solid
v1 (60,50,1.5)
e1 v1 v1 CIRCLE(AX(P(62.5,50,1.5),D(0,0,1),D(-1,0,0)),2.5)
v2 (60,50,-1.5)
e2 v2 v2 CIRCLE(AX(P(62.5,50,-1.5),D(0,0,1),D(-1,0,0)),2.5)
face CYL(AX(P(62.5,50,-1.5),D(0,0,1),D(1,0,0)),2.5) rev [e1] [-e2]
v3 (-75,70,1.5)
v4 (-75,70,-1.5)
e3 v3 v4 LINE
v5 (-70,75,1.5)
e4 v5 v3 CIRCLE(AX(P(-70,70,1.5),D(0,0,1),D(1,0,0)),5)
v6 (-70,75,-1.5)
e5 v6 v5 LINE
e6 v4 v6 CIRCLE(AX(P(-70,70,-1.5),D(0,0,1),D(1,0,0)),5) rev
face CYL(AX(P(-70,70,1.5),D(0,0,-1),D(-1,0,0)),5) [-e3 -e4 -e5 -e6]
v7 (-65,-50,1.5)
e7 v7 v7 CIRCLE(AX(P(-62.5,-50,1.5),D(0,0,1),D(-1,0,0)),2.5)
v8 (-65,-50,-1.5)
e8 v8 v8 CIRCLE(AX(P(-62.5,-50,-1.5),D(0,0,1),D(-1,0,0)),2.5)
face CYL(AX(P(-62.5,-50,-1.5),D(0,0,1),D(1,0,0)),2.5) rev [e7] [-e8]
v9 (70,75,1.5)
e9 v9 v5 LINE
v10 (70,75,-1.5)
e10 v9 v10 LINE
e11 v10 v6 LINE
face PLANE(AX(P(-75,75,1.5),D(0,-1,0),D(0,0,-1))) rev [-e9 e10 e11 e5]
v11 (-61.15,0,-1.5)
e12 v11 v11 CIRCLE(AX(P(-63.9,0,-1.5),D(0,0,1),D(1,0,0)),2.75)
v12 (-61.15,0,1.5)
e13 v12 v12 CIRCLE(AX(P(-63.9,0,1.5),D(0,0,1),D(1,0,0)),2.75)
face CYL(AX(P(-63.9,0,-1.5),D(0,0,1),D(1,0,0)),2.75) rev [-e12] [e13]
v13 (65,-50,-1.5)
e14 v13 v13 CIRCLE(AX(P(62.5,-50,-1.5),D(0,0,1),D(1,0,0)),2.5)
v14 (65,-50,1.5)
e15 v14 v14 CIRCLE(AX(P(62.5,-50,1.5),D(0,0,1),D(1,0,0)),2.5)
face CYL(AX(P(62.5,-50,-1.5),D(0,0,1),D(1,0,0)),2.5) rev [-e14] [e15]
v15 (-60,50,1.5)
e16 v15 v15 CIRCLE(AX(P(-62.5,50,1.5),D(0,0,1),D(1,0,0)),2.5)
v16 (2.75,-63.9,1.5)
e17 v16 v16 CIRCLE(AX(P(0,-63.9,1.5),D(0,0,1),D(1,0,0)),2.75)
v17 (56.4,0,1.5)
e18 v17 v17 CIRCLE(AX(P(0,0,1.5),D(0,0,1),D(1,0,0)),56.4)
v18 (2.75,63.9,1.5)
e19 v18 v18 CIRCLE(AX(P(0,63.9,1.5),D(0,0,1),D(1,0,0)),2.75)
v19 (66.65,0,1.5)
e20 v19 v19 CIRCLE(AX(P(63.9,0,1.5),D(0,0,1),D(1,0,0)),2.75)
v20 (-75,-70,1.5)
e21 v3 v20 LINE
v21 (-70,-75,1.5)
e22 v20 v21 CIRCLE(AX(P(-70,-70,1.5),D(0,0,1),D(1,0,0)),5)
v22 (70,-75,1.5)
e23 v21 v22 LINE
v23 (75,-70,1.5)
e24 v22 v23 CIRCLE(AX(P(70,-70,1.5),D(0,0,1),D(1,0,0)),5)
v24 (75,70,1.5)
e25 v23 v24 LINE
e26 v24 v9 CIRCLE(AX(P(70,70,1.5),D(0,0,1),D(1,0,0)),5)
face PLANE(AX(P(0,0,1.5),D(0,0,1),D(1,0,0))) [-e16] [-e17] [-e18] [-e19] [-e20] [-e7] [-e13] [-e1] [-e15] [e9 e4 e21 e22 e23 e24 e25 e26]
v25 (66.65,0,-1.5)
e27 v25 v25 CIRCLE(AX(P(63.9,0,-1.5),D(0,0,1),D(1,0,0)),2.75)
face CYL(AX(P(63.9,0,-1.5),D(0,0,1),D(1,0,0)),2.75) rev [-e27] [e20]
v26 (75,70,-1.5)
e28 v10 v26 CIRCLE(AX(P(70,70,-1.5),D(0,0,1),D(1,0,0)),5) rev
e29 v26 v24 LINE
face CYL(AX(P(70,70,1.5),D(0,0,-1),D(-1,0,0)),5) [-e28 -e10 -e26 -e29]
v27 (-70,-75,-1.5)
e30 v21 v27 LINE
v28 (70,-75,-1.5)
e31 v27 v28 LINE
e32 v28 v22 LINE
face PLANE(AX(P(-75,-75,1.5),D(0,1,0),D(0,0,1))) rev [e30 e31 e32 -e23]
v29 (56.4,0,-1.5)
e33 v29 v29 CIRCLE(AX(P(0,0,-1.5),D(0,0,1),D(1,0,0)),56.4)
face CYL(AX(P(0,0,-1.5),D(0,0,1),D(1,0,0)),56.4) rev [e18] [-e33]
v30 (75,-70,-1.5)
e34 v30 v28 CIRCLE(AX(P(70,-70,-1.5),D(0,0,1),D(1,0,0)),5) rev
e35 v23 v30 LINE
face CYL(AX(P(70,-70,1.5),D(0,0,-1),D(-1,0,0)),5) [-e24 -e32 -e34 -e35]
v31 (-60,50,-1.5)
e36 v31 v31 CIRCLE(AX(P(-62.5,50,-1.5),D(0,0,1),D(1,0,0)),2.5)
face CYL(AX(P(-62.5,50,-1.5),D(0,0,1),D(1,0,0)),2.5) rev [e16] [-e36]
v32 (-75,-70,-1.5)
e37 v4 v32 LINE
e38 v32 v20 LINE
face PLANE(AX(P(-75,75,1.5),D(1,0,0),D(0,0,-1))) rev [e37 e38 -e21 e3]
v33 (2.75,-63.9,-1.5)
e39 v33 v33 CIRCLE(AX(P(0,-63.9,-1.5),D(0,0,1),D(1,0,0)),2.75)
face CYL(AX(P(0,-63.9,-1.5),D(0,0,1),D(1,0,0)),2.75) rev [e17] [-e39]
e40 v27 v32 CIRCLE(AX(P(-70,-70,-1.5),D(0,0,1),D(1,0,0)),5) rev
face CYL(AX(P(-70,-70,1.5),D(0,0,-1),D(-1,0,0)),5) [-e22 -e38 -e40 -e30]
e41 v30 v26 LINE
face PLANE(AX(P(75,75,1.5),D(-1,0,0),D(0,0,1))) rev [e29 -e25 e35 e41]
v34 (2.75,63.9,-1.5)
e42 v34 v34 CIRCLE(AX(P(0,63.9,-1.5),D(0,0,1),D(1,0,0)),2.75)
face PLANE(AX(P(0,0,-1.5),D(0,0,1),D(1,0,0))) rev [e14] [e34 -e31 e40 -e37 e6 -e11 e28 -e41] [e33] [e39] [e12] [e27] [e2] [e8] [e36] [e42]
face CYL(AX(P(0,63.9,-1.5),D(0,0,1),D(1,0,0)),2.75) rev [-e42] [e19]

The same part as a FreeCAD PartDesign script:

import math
import FreeCAD as App
import Part
import Sketcher

V = App.Vector
Q = App.Units.Quantity


def edges_at(feature, points):
    """Names of the edges that pass closest to the given points."""
    edges = feature.Shape.Edges
    near = lambda p: min(range(len(edges)), key=lambda i: edges[i].distToShape(Part.Vertex(*p))[0])
    return sorted({f"Edge{near(p) + 1}" for p in points})

doc = App.newDocument("Part")
body = doc.addObject("PartDesign::Body", "Body")

sketch1 = body.newObject("Sketcher::SketchObject", "Sketch")
sketch1.AttachmentSupport = (doc.getObject("XY_Plane"), [""])
sketch1.MapMode = "FlatFace"
sketch1.addGeometry(Part.LineSegment(V(-75, 75, 0), V(-75, -75, 0)), False)
sketch1.addGeometry(Part.LineSegment(V(-75, -75, 0), V(75, -75, 0)), False)
sketch1.addGeometry(Part.LineSegment(V(75, -75, 0), V(75, 75, 0)), False)
sketch1.addGeometry(Part.LineSegment(V(75, 75, 0), V(-75, 75, 0)), False)
sketch1.addConstraint(Sketcher.Constraint("Coincident", 0, 2, 1, 1))
sketch1.addConstraint(Sketcher.Constraint("Coincident", 1, 2, 2, 1))
sketch1.addConstraint(Sketcher.Constraint("Coincident", 2, 2, 3, 1))
sketch1.addConstraint(Sketcher.Constraint("Coincident", 3, 2, 0, 1))
sketch1.addConstraint(Sketcher.Constraint("Vertical", 0))
sketch1.addConstraint(Sketcher.Constraint("Horizontal", 1))
sketch1.addConstraint(Sketcher.Constraint("Vertical", 2))
sketch1.addConstraint(Sketcher.Constraint("Horizontal", 3))
sketch1.addConstraint(Sketcher.Constraint("Symmetric", 0, 2, 2, 2, -1, 1))
sketch1.addConstraint(Sketcher.Constraint("Equal", 3, 0))
sketch1.addConstraint(Sketcher.Constraint("DistanceX", 1, 1, 1, 2, Q("150 mm")))
pad1 = body.newObject("PartDesign::Pad", "Pad")
pad1.Profile = sketch1
pad1.Length = 3
pad1.Midplane = True

sketch2 = body.newObject("Sketcher::SketchObject", "Sketch001")
sketch2.AttachmentSupport = (doc.getObject("XY_Plane"), [""])
sketch2.MapMode = "FlatFace"
sketch2.addGeometry(Part.Circle(V(0, 63.9, 0), V(0, 0, 1), 2.8), False)
sketch2.addGeometry(Part.Circle(V(63.9, 0, 0), V(0, 0, 1), 2.8), False)
sketch2.addGeometry(Part.Circle(V(0, -63.9, 0), V(0, 0, 1), 2.8), False)
sketch2.addGeometry(Part.Circle(V(-63.9, 0, 0), V(0, 0, 1), 2.8), False)
sketch2.addConstraint(Sketcher.Constraint("Equal", 0, 1))
sketch2.addConstraint(Sketcher.Constraint("Equal", 1, 2))
sketch2.addConstraint(Sketcher.Constraint("Equal", 2, 3))
sketch2.addConstraint(Sketcher.Constraint("Symmetric", 0, 3, 2, 3, -1, 1))
sketch2.addConstraint(Sketcher.Constraint("Symmetric", 1, 3, 3, 3, -1, 1))
sketch2.addConstraint(Sketcher.Constraint("PointOnObject", 0, 3, -2))
sketch2.addConstraint(Sketcher.Constraint("PointOnObject", 1, 3, -1))
sketch2.addConstraint(Sketcher.Constraint("Diameter", 0, Q("5.5 mm")))
sketch2.addConstraint(Sketcher.Constraint("DistanceY", -1, 1, 0, 3, Q("63.9 mm")))
sketch2.addConstraint(Sketcher.Constraint("DistanceX", -1, 1, 1, 3, Q("63.9 mm")))
pocket1 = body.newObject("PartDesign::Pocket", "Pocket")
pocket1.Profile = sketch2
pocket1.Type = "ThroughAll"
pocket1.Midplane = True

sketch3 = body.newObject("Sketcher::SketchObject", "Sketch002")
sketch3.AttachmentSupport = (doc.getObject("XY_Plane"), [""])
sketch3.MapMode = "FlatFace"
sketch3.addGeometry(Part.ArcOfCircle(Part.Circle(V(0, 0, 0), V(0, 0, 1), 56), math.radians(-173), math.radians(-7)), False)
sketch3.addGeometry(Part.ArcOfCircle(Part.Circle(V(0, 0, 0), V(0, 0, 1), 56), math.radians(-7), math.radians(187)), False)
sketch3.addConstraint(Sketcher.Constraint("Tangent", 0, 1, 1, 2))
sketch3.addConstraint(Sketcher.Constraint("Coincident", 1, 1, 0, 2))
sketch3.addConstraint(Sketcher.Constraint("Coincident", 0, 3, -1, 1))
sketch3.addConstraint(Sketcher.Constraint("Horizontal", 0, 1, 1, 1))
sketch3.addConstraint(Sketcher.Constraint("Radius", 0, Q("56.4 mm")))
sketch3.addConstraint(Sketcher.Constraint("DistanceX", 0, 1, -1, 1, Q("56 mm")))
pocket2 = body.newObject("PartDesign::Pocket", "Pocket001")
pocket2.Profile = sketch3
pocket2.Type = "ThroughAll"
pocket2.Midplane = True

sketch4 = body.newObject("Sketcher::SketchObject", "Sketch003")
sketch4.AttachmentSupport = (doc.getObject("XY_Plane"), [""])
sketch4.MapMode = "FlatFace"
sketch4.addGeometry(Part.Circle(V(-62.5, 50, 0), V(0, 0, 1), 2.5), False)
sketch4.addGeometry(Part.Circle(V(-62.5, -50, 0), V(0, 0, 1), 2.5), False)
sketch4.addGeometry(Part.Circle(V(62.5, -50, 0), V(0, 0, 1), 2.5), False)
sketch4.addGeometry(Part.Circle(V(62.5, 50, 0), V(0, 0, 1), 2.5), False)
sketch4.addConstraint(Sketcher.Constraint("Equal", 0, 1))
sketch4.addConstraint(Sketcher.Constraint("Equal", 1, 2))
sketch4.addConstraint(Sketcher.Constraint("Equal", 2, 3))
sketch4.addConstraint(Sketcher.Constraint("Symmetric", 0, 3, 2, 3, -1, 1))
sketch4.addConstraint(Sketcher.Constraint("Symmetric", 1, 3, 3, 3, -1, 1))
sketch4.addConstraint(Sketcher.Constraint("Symmetric", 1, 3, 2, 3, -2))
sketch4.addConstraint(Sketcher.Constraint("Diameter", 0, Q("5 mm")))
sketch4.addConstraint(Sketcher.Constraint("DistanceY", -1, 1, 0, 3, Q("50 mm")))
sketch4.addConstraint(Sketcher.Constraint("DistanceX", 1, 3, 2, 3, Q("125 mm")))
pocket3 = body.newObject("PartDesign::Pocket", "Pocket002")
pocket3.Profile = sketch4
pocket3.Type = "ThroughAll"
pocket3.Midplane = True
doc.recompute()

fillet = body.newObject("PartDesign::Fillet", "Fillet")
fillet.Base = (pocket3, edges_at(pocket3, [
    (75, -75, 0),
    (-75, -75, 0),
    (-75, 75, 0),
    (75, 75, 0),
]))
fillet.Radius = 5

doc.recompute()
